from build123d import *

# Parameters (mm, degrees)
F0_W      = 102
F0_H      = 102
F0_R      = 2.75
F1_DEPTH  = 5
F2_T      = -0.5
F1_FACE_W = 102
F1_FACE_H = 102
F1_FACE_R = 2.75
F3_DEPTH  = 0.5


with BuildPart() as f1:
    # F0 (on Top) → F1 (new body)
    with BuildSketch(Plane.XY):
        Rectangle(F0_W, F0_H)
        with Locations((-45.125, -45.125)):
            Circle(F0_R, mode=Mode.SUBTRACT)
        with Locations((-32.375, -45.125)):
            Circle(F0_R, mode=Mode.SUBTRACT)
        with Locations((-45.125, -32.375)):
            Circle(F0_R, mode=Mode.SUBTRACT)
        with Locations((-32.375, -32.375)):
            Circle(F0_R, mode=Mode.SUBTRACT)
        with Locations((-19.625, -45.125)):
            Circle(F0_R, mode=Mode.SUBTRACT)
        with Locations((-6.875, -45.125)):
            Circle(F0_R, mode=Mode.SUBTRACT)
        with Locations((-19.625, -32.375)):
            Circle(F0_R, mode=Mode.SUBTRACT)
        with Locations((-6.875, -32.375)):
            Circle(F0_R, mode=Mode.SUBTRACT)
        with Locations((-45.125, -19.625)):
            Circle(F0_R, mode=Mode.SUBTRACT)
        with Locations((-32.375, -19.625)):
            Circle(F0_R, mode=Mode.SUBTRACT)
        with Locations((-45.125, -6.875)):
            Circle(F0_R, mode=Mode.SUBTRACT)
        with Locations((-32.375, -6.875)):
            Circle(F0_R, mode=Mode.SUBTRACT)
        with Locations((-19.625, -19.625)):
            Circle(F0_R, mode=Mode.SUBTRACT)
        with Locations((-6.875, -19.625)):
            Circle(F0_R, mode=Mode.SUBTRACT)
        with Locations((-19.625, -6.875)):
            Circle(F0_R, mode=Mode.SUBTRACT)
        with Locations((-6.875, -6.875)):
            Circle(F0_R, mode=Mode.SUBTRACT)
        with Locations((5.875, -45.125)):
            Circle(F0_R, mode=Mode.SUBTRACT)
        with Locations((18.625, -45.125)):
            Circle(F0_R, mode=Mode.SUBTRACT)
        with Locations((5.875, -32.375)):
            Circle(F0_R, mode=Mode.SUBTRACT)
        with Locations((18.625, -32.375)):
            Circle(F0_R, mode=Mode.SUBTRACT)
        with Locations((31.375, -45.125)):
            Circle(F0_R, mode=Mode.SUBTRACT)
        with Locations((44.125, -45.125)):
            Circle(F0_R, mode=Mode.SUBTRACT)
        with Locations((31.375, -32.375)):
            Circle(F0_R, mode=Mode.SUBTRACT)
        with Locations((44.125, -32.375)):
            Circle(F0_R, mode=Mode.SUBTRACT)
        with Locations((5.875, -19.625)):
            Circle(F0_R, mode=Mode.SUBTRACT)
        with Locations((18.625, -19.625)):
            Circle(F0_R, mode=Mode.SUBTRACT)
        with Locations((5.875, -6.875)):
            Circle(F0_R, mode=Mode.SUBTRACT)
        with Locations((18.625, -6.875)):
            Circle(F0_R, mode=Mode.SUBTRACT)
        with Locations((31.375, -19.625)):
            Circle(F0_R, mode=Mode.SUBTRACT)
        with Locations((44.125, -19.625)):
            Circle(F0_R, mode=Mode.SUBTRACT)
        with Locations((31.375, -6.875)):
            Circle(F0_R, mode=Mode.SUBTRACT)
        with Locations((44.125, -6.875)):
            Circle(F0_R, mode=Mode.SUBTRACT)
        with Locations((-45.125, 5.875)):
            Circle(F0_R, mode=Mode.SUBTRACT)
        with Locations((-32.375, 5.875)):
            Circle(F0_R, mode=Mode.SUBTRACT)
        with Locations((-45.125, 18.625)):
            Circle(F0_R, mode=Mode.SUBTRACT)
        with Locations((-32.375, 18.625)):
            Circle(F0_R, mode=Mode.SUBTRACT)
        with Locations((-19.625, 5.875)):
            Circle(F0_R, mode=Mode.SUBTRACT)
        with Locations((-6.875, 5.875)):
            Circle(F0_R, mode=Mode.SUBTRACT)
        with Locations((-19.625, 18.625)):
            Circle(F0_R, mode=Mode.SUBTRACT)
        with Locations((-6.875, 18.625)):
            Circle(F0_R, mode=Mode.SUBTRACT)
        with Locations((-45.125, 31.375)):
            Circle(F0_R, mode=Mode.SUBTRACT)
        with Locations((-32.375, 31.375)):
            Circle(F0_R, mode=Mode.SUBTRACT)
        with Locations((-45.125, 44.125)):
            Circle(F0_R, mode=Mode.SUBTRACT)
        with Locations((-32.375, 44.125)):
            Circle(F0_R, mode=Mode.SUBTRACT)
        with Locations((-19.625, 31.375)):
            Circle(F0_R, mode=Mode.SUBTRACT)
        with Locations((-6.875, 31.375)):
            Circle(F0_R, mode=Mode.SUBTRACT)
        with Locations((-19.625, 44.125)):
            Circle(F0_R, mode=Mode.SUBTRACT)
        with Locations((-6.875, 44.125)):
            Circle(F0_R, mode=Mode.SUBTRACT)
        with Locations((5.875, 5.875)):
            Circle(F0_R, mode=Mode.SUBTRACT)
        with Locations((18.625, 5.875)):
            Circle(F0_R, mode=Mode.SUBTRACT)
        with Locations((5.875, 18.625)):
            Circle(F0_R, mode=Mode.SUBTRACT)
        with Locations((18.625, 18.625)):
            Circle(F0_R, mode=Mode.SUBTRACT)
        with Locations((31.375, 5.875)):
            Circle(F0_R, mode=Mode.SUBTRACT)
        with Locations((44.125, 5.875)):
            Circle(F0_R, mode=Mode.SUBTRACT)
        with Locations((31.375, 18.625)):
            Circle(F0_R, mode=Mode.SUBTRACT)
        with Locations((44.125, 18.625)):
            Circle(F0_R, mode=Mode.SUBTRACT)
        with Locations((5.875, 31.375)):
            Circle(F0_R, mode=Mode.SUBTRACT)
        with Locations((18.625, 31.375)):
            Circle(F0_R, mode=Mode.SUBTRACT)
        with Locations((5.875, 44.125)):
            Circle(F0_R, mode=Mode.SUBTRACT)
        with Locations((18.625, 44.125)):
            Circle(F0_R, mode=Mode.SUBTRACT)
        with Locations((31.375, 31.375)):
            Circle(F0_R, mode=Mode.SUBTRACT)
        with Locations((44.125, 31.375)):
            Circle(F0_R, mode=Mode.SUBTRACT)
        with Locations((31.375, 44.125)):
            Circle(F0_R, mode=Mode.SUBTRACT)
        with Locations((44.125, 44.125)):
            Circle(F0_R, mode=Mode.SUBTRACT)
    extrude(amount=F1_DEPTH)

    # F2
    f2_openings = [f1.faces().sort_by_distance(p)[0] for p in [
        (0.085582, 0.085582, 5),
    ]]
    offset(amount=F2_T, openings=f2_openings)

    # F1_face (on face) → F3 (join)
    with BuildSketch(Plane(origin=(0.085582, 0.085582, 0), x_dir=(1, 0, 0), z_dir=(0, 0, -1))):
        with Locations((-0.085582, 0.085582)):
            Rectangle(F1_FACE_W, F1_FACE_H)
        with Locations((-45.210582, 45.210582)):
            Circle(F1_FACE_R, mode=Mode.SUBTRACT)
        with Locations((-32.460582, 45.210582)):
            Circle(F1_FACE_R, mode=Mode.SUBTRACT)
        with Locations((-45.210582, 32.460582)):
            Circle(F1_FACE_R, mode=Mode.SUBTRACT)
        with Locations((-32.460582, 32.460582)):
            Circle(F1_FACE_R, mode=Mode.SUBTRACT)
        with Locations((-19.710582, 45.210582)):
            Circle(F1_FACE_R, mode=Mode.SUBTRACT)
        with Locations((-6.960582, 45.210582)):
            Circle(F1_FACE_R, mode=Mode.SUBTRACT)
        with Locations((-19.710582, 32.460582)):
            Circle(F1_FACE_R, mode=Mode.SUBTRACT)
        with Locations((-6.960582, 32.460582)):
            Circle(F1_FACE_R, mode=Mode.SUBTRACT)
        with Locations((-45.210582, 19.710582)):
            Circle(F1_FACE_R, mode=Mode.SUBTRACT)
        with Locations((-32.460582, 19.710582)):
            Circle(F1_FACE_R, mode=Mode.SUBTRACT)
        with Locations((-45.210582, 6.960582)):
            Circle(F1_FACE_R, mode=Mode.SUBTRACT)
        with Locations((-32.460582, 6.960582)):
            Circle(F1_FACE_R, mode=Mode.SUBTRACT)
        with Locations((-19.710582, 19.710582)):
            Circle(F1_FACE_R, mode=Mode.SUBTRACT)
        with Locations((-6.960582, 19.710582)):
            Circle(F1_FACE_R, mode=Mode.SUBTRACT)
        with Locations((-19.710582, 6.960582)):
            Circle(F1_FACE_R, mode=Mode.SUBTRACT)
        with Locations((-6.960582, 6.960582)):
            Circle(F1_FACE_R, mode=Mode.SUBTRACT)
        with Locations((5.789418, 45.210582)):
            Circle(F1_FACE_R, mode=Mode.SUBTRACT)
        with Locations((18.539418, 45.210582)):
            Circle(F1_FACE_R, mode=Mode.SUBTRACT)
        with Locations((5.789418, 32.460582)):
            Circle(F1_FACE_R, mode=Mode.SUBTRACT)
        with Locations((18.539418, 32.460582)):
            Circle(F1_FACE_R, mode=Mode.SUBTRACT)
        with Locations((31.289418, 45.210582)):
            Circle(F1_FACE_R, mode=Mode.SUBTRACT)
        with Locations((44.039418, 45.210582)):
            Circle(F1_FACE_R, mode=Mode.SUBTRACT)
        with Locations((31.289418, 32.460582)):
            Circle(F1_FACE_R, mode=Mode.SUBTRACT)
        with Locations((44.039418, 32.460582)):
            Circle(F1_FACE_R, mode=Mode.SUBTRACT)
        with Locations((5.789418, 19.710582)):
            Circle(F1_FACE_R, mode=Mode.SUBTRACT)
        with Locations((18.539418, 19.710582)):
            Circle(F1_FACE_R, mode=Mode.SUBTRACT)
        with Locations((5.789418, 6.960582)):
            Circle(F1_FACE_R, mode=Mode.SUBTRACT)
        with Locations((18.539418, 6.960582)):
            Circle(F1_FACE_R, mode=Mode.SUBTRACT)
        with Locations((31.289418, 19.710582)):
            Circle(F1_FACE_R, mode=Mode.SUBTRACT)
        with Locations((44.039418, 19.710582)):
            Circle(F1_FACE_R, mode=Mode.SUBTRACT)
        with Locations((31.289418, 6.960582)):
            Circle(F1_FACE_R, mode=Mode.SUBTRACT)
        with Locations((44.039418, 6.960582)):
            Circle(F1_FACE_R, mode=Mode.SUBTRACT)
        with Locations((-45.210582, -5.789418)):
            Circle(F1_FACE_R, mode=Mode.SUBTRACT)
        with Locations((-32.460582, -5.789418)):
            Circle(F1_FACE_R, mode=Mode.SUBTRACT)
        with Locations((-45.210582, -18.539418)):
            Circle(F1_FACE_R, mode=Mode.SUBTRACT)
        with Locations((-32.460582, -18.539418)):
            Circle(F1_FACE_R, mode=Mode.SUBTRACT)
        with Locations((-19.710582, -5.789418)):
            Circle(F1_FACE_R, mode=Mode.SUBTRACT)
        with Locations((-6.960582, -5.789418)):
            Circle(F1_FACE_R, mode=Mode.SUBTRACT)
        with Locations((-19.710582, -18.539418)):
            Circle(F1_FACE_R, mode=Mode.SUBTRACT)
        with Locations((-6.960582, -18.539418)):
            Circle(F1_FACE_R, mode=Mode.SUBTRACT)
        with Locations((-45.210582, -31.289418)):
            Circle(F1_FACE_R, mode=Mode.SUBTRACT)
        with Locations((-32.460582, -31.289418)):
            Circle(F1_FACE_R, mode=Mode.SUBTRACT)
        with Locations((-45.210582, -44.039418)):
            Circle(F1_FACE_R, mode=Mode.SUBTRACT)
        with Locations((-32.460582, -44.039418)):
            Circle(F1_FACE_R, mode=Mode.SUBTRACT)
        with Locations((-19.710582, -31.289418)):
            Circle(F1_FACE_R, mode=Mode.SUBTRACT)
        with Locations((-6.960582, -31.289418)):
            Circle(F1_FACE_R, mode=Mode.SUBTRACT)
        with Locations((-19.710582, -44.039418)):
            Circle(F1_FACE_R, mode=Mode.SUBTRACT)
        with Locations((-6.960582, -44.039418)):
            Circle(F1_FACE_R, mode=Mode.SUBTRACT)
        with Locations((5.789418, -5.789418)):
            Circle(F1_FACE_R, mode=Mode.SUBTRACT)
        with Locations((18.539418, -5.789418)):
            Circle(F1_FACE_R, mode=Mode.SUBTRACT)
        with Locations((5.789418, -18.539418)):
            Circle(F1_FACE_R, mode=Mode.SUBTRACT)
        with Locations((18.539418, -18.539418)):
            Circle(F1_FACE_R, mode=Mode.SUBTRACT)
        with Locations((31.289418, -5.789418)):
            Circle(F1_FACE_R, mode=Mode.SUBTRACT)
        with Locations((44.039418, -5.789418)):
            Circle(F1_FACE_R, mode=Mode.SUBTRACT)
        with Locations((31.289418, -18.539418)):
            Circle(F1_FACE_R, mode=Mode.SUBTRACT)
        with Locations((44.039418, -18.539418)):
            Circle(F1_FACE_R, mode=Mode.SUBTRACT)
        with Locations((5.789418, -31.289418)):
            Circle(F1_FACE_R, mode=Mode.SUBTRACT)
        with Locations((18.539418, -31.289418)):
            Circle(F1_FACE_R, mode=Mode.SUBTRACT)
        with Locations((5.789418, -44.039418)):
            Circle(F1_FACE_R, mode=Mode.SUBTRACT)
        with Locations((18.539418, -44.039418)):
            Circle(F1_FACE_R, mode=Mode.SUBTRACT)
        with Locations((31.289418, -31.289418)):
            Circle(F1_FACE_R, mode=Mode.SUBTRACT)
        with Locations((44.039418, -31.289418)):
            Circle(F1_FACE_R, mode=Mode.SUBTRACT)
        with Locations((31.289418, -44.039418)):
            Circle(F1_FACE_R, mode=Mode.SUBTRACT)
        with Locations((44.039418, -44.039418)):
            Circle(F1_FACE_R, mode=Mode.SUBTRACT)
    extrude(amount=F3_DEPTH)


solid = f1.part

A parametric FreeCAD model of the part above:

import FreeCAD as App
import Part
import Sketcher
from FreeCAD import Vector


def faces_at(feature, points):
    """Names of the faces that lie closest to the given points."""
    faces = feature.Shape.Faces
    near = lambda p: min(range(len(faces)), key=lambda i: faces[i].distToShape(Part.Vertex(*p))[0])
    return sorted({f"Face{near(p) + 1}" for p in points})


def add_polygon(sketch, points):
    """Adds a closed chain of lines whose ends are joined by coincident constraints."""
    first, n = sketch.GeometryCount, len(points)
    for a, b in zip(points, points[1:] + points[:1]):
        sketch.addGeometry(Part.LineSegment(App.Vector(*a, 0), App.Vector(*b, 0)), False)
    for i in range(n):
        sketch.addConstraint(Sketcher.Constraint("Coincident", first + i, 2, first + (i + 1) % n, 1))

doc = App.newDocument("Part")
params = doc.addObject("Spreadsheet::Sheet", "Params")
for row, (alias, value) in enumerate([
    ("sketch1_diameter", "5.5 mm"),
    ("sketch1_width", "102 mm"),
    ("pad1_length", "5 mm"),
    ("thickness_wall", "0.5 mm"),
    ("sketch2_diameter", "5.5 mm"),
    ("sketch2_width", "102 mm"),
    ("pad2_length", "0.5 mm"),
], start=1):
    params.set(f"A{row}", alias)
    params.set(f"B{row}", "=" + value)
    params.setAlias(f"B{row}", alias)

body = doc.addObject("PartDesign::Body", "Body")

# Sketch on XY plane
sketch1 = body.newObject("Sketcher::SketchObject", "Sketch")
sketch1.AttachmentSupport = (doc.getObject("XY_Plane"), [""])
sketch1.MapMode = "FlatFace"
add_polygon(sketch1, [(-51, 51), (-51, -51), (51, -51), (51, 51)])  # lines 0-3
sketch1.addGeometry(Part.Circle(Vector(-45.1, -45.1, 0), Vector(0, 0, 1), 2.8), False)  # 4
sketch1.addGeometry(Part.Circle(Vector(-32.4, -45.1, 0), Vector(0, 0, 1), 2.8), False)  # 5
sketch1.addGeometry(Part.Circle(Vector(-45.1, -32.4, 0), Vector(0, 0, 1), 2.8), False)  # 6
sketch1.addGeometry(Part.Circle(Vector(-32.4, -32.4, 0), Vector(0, 0, 1), 2.8), False)  # 7
sketch1.addGeometry(Part.Circle(Vector(-19.6, -45.1, 0), Vector(0, 0, 1), 2.8), False)  # 8
sketch1.addGeometry(Part.Circle(Vector(-6.9, -45.1, 0), Vector(0, 0, 1), 2.8), False)  # 9
sketch1.addGeometry(Part.Circle(Vector(-19.6, -32.4, 0), Vector(0, 0, 1), 2.8), False)  # 10
sketch1.addGeometry(Part.Circle(Vector(-6.9, -32.4, 0), Vector(0, 0, 1), 2.8), False)  # 11
sketch1.addGeometry(Part.Circle(Vector(-45.1, -19.6, 0), Vector(0, 0, 1), 2.8), False)  # 12
sketch1.addGeometry(Part.Circle(Vector(-32.4, -19.6, 0), Vector(0, 0, 1), 2.8), False)  # 13
sketch1.addGeometry(Part.Circle(Vector(-45.1, -6.9, 0), Vector(0, 0, 1), 2.8), False)  # 14
sketch1.addGeometry(Part.Circle(Vector(-32.4, -6.9, 0), Vector(0, 0, 1), 2.8), False)  # 15
sketch1.addGeometry(Part.Circle(Vector(-19.6, -19.6, 0), Vector(0, 0, 1), 2.8), False)  # 16
sketch1.addGeometry(Part.Circle(Vector(-6.9, -19.6, 0), Vector(0, 0, 1), 2.8), False)  # 17
sketch1.addGeometry(Part.Circle(Vector(-19.6, -6.9, 0), Vector(0, 0, 1), 2.8), False)  # 18
sketch1.addGeometry(Part.Circle(Vector(-6.9, -6.9, 0), Vector(0, 0, 1), 2.8), False)  # 19
sketch1.addGeometry(Part.Circle(Vector(5.9, -45.1, 0), Vector(0, 0, 1), 2.8), False)  # 20
sketch1.addGeometry(Part.Circle(Vector(18.6, -45.1, 0), Vector(0, 0, 1), 2.8), False)  # 21
sketch1.addGeometry(Part.Circle(Vector(5.9, -32.4, 0), Vector(0, 0, 1), 2.8), False)  # 22
sketch1.addGeometry(Part.Circle(Vector(18.6, -32.4, 0), Vector(0, 0, 1), 2.8), False)  # 23
sketch1.addGeometry(Part.Circle(Vector(31.4, -45.1, 0), Vector(0, 0, 1), 2.8), False)  # 24
sketch1.addGeometry(Part.Circle(Vector(44.1, -45.1, 0), Vector(0, 0, 1), 2.8), False)  # 25
sketch1.addGeometry(Part.Circle(Vector(31.4, -32.4, 0), Vector(0, 0, 1), 2.8), False)  # 26
sketch1.addGeometry(Part.Circle(Vector(44.1, -32.4, 0), Vector(0, 0, 1), 2.8), False)  # 27
sketch1.addGeometry(Part.Circle(Vector(5.9, -19.6, 0), Vector(0, 0, 1), 2.8), False)  # 28
sketch1.addGeometry(Part.Circle(Vector(18.6, -19.6, 0), Vector(0, 0, 1), 2.8), False)  # 29
sketch1.addGeometry(Part.Circle(Vector(5.9, -6.9, 0), Vector(0, 0, 1), 2.8), False)  # 30
sketch1.addGeometry(Part.Circle(Vector(18.6, -6.9, 0), Vector(0, 0, 1), 2.8), False)  # 31
sketch1.addGeometry(Part.Circle(Vector(31.4, -19.6, 0), Vector(0, 0, 1), 2.8), False)  # 32
sketch1.addGeometry(Part.Circle(Vector(44.1, -19.6, 0), Vector(0, 0, 1), 2.8), False)  # 33
sketch1.addGeometry(Part.Circle(Vector(31.4, -6.9, 0), Vector(0, 0, 1), 2.8), False)  # 34
sketch1.addGeometry(Part.Circle(Vector(44.1, -6.9, 0), Vector(0, 0, 1), 2.8), False)  # 35
sketch1.addGeometry(Part.Circle(Vector(-45.1, 5.9, 0), Vector(0, 0, 1), 2.8), False)  # 36
sketch1.addGeometry(Part.Circle(Vector(-32.4, 5.9, 0), Vector(0, 0, 1), 2.8), False)  # 37
sketch1.addGeometry(Part.Circle(Vector(-45.1, 18.6, 0), Vector(0, 0, 1), 2.8), False)  # 38
sketch1.addGeometry(Part.Circle(Vector(-32.4, 18.6, 0), Vector(0, 0, 1), 2.8), False)  # 39
sketch1.addGeometry(Part.Circle(Vector(-19.6, 5.9, 0), Vector(0, 0, 1), 2.8), False)  # 40
sketch1.addGeometry(Part.Circle(Vector(-6.9, 5.9, 0), Vector(0, 0, 1), 2.8), False)  # 41
sketch1.addGeometry(Part.Circle(Vector(-19.6, 18.6, 0), Vector(0, 0, 1), 2.8), False)  # 42
sketch1.addGeometry(Part.Circle(Vector(-6.9, 18.6, 0), Vector(0, 0, 1), 2.8), False)  # 43
sketch1.addGeometry(Part.Circle(Vector(-45.1, 31.4, 0), Vector(0, 0, 1), 2.8), False)  # 44
sketch1.addGeometry(Part.Circle(Vector(-32.4, 31.4, 0), Vector(0, 0, 1), 2.8), False)  # 45
sketch1.addGeometry(Part.Circle(Vector(-45.1, 44.1, 0), Vector(0, 0, 1), 2.8), False)  # 46
sketch1.addGeometry(Part.Circle(Vector(-32.4, 44.1, 0), Vector(0, 0, 1), 2.8), False)  # 47
sketch1.addGeometry(Part.Circle(Vector(-19.6, 31.4, 0), Vector(0, 0, 1), 2.8), False)  # 48
sketch1.addGeometry(Part.Circle(Vector(-6.9, 31.4, 0), Vector(0, 0, 1), 2.8), False)  # 49
sketch1.addGeometry(Part.Circle(Vector(-19.6, 44.1, 0), Vector(0, 0, 1), 2.8), False)  # 50
sketch1.addGeometry(Part.Circle(Vector(-6.9, 44.1, 0), Vector(0, 0, 1), 2.8), False)  # 51
sketch1.addGeometry(Part.Circle(Vector(5.9, 5.9, 0), Vector(0, 0, 1), 2.8), False)  # 52
sketch1.addGeometry(Part.Circle(Vector(18.6, 5.9, 0), Vector(0, 0, 1), 2.8), False)  # 53
sketch1.addGeometry(Part.Circle(Vector(5.9, 18.6, 0), Vector(0, 0, 1), 2.8), False)  # 54
sketch1.addGeometry(Part.Circle(Vector(18.6, 18.6, 0), Vector(0, 0, 1), 2.8), False)  # 55
sketch1.addGeometry(Part.Circle(Vector(31.4, 5.9, 0), Vector(0, 0, 1), 2.8), False)  # 56
sketch1.addGeometry(Part.Circle(Vector(44.1, 5.9, 0), Vector(0, 0, 1), 2.8), False)  # 57
sketch1.addGeometry(Part.Circle(Vector(31.4, 18.6, 0), Vector(0, 0, 1), 2.8), False)  # 58
sketch1.addGeometry(Part.Circle(Vector(44.1, 18.6, 0), Vector(0, 0, 1), 2.8), False)  # 59
sketch1.addGeometry(Part.Circle(Vector(5.9, 31.4, 0), Vector(0, 0, 1), 2.8), False)  # 60
sketch1.addGeometry(Part.Circle(Vector(18.6, 31.4, 0), Vector(0, 0, 1), 2.8), False)  # 61
sketch1.addGeometry(Part.Circle(Vector(5.9, 44.1, 0), Vector(0, 0, 1), 2.8), False)  # 62
sketch1.addGeometry(Part.Circle(Vector(18.6, 44.1, 0), Vector(0, 0, 1), 2.8), False)  # 63
sketch1.addGeometry(Part.Circle(Vector(31.4, 31.4, 0), Vector(0, 0, 1), 2.8), False)  # 64
sketch1.addGeometry(Part.Circle(Vector(44.1, 31.4, 0), Vector(0, 0, 1), 2.8), False)  # 65
sketch1.addGeometry(Part.Circle(Vector(31.4, 44.1, 0), Vector(0, 0, 1), 2.8), False)  # 66
sketch1.addGeometry(Part.Circle(Vector(44.1, 44.1, 0), Vector(0, 0, 1), 2.8), False)  # 67
sketch1.addConstraint([
    Sketcher.Constraint("Vertical", 0),
    Sketcher.Constraint("Horizontal", 1),
    Sketcher.Constraint("Vertical", 2),
    Sketcher.Constraint("Horizontal", 3),
    Sketcher.Constraint("Equal", 4, 5),
    Sketcher.Constraint("Equal", 5, 6),
    Sketcher.Constraint("Equal", 6, 7),
    Sketcher.Constraint("Equal", 7, 8),
    Sketcher.Constraint("Equal", 8, 9),
    Sketcher.Constraint("Equal", 9, 10),
    Sketcher.Constraint("Equal", 10, 11),
    Sketcher.Constraint("Equal", 11, 12),
    Sketcher.Constraint("Equal", 12, 13),
    Sketcher.Constraint("Equal", 13, 14),
    Sketcher.Constraint("Equal", 14, 15),
    Sketcher.Constraint("Equal", 15, 16),
    Sketcher.Constraint("Equal", 16, 17),
    Sketcher.Constraint("Equal", 17, 18),
    Sketcher.Constraint("Equal", 18, 19),
    Sketcher.Constraint("Equal", 19, 20),
    Sketcher.Constraint("Equal", 20, 21),
    Sketcher.Constraint("Equal", 21, 22),
    Sketcher.Constraint("Equal", 22, 23),
    Sketcher.Constraint("Equal", 23, 24),
    Sketcher.Constraint("Equal", 24, 25),
    Sketcher.Constraint("Equal", 25, 26),
    Sketcher.Constraint("Equal", 26, 27),
    Sketcher.Constraint("Equal", 27, 28),
    Sketcher.Constraint("Equal", 28, 29),
    Sketcher.Constraint("Equal", 29, 30),
    Sketcher.Constraint("Equal", 30, 31),
    Sketcher.Constraint("Equal", 31, 32),
    Sketcher.Constraint("Equal", 32, 33),
    Sketcher.Constraint("Equal", 33, 34),
    Sketcher.Constraint("Equal", 34, 35),
    Sketcher.Constraint("Equal", 35, 36),
    Sketcher.Constraint("Equal", 36, 37),
    Sketcher.Constraint("Equal", 37, 38),
    Sketcher.Constraint("Equal", 38, 39),
    Sketcher.Constraint("Equal", 39, 40),
    Sketcher.Constraint("Equal", 40, 41),
    Sketcher.Constraint("Equal", 41, 42),
    Sketcher.Constraint("Equal", 42, 43),
    Sketcher.Constraint("Equal", 43, 44),
    Sketcher.Constraint("Equal", 44, 45),
    Sketcher.Constraint("Equal", 45, 46),
    Sketcher.Constraint("Equal", 46, 47),
    Sketcher.Constraint("Equal", 47, 48),
    Sketcher.Constraint("Equal", 48, 49),
    Sketcher.Constraint("Equal", 49, 50),
    Sketcher.Constraint("Equal", 50, 51),
    Sketcher.Constraint("Equal", 51, 52),
    Sketcher.Constraint("Equal", 52, 53),
    Sketcher.Constraint("Equal", 53, 54),
    Sketcher.Constraint("Equal", 54, 55),
    Sketcher.Constraint("Equal", 55, 56),
    Sketcher.Constraint("Equal", 56, 57),
    Sketcher.Constraint("Equal", 57, 58),
    Sketcher.Constraint("Equal", 58, 59),
    Sketcher.Constraint("Equal", 59, 60),
    Sketcher.Constraint("Equal", 60, 61),
    Sketcher.Constraint("Equal", 61, 62),
    Sketcher.Constraint("Equal", 62, 63),
    Sketcher.Constraint("Equal", 63, 64),
    Sketcher.Constraint("Equal", 64, 65),
    Sketcher.Constraint("Equal", 65, 66),
    Sketcher.Constraint("Equal", 66, 67),
    Sketcher.Constraint("Symmetric", 0, 2, 2, 2, -1, 1),
    Sketcher.Constraint("Horizontal", 4, 3, 5, 3),
    Sketcher.Constraint("Horizontal", 6, 3, 7, 3),
    Sketcher.Constraint("Horizontal", 5, 3, 8, 3),
    Sketcher.Constraint("Horizontal", 8, 3, 9, 3),
    Sketcher.Constraint("Horizontal", 7, 3, 10, 3),
    Sketcher.Constraint("Horizontal", 10, 3, 11, 3),
    Sketcher.Constraint("Horizontal", 12, 3, 13, 3),
    Sketcher.Constraint("Horizontal", 14, 3, 15, 3),
    Sketcher.Constraint("Horizontal", 13, 3, 16, 3),
    Sketcher.Constraint("Horizontal", 16, 3, 17, 3),
    Sketcher.Constraint("Horizontal", 15, 3, 18, 3),
    Sketcher.Constraint("Horizontal", 18, 3, 19, 3),
    Sketcher.Constraint("Horizontal", 9, 3, 20, 3),
    Sketcher.Constraint("Horizontal", 20, 3, 21, 3),
    Sketcher.Constraint("Horizontal", 11, 3, 22, 3),
    Sketcher.Constraint("Horizontal", 22, 3, 23, 3),
    Sketcher.Constraint("Horizontal", 21, 3, 24, 3),
    Sketcher.Constraint("Horizontal", 24, 3, 25, 3),
    Sketcher.Constraint("Horizontal", 23, 3, 26, 3),
    Sketcher.Constraint("Horizontal", 26, 3, 27, 3),
    Sketcher.Constraint("Horizontal", 17, 3, 28, 3),
    Sketcher.Constraint("Horizontal", 28, 3, 29, 3),
    Sketcher.Constraint("Horizontal", 19, 3, 30, 3),
    Sketcher.Constraint("Horizontal", 30, 3, 31, 3),
    Sketcher.Constraint("Horizontal", 29, 3, 32, 3),
    Sketcher.Constraint("Horizontal", 32, 3, 33, 3),
    Sketcher.Constraint("Horizontal", 31, 3, 34, 3),
    Sketcher.Constraint("Horizontal", 34, 3, 35, 3),
    Sketcher.Constraint("Horizontal", 36, 3, 37, 3),
    Sketcher.Constraint("Horizontal", 38, 3, 39, 3),
    Sketcher.Constraint("Horizontal", 37, 3, 40, 3),
    Sketcher.Constraint("Horizontal", 40, 3, 41, 3),
    Sketcher.Constraint("Horizontal", 39, 3, 42, 3),
    Sketcher.Constraint("Horizontal", 42, 3, 43, 3),
    Sketcher.Constraint("Horizontal", 44, 3, 45, 3),
    Sketcher.Constraint("Horizontal", 46, 3, 47, 3),
    Sketcher.Constraint("Horizontal", 45, 3, 48, 3),
    Sketcher.Constraint("Horizontal", 48, 3, 49, 3),
    Sketcher.Constraint("Horizontal", 47, 3, 50, 3),
    Sketcher.Constraint("Horizontal", 50, 3, 51, 3),
    Sketcher.Constraint("Horizontal", 41, 3, 52, 3),
    Sketcher.Constraint("Horizontal", 52, 3, 53, 3),
    Sketcher.Constraint("Horizontal", 43, 3, 54, 3),
    Sketcher.Constraint("Horizontal", 54, 3, 55, 3),
    Sketcher.Constraint("Horizontal", 53, 3, 56, 3),
    Sketcher.Constraint("Horizontal", 56, 3, 57, 3),
    Sketcher.Constraint("Horizontal", 55, 3, 58, 3),
    Sketcher.Constraint("Horizontal", 58, 3, 59, 3),
    Sketcher.Constraint("Horizontal", 49, 3, 60, 3),
    Sketcher.Constraint("Horizontal", 60, 3, 61, 3),
    Sketcher.Constraint("Horizontal", 51, 3, 62, 3),
    Sketcher.Constraint("Horizontal", 62, 3, 63, 3),
    Sketcher.Constraint("Horizontal", 61, 3, 64, 3),
    Sketcher.Constraint("Horizontal", 64, 3, 65, 3),
    Sketcher.Constraint("Horizontal", 63, 3, 66, 3),
    Sketcher.Constraint("Horizontal", 66, 3, 67, 3),
    Sketcher.Constraint("Vertical", 4, 3, 6, 3),
    Sketcher.Constraint("Vertical", 5, 3, 7, 3),
    Sketcher.Constraint("Vertical", 8, 3, 10, 3),
    Sketcher.Constraint("Vertical", 9, 3, 11, 3),
    Sketcher.Constraint("Vertical", 6, 3, 12, 3),
    Sketcher.Constraint("Vertical", 7, 3, 13, 3),
    Sketcher.Constraint("Vertical", 12, 3, 14, 3),
    Sketcher.Constraint("Vertical", 13, 3, 15, 3),
    Sketcher.Constraint("Vertical", 10, 3, 16, 3),
    Sketcher.Constraint("Vertical", 11, 3, 17, 3),
    Sketcher.Constraint("Vertical", 16, 3, 18, 3),
    Sketcher.Constraint("Vertical", 17, 3, 19, 3),
    Sketcher.Constraint("Vertical", 20, 3, 22, 3),
    Sketcher.Constraint("Vertical", 21, 3, 23, 3),
    Sketcher.Constraint("Vertical", 24, 3, 26, 3),
    Sketcher.Constraint("Vertical", 25, 3, 27, 3),
    Sketcher.Constraint("Vertical", 22, 3, 28, 3),
    Sketcher.Constraint("Vertical", 23, 3, 29, 3),
    Sketcher.Constraint("Vertical", 28, 3, 30, 3),
    Sketcher.Constraint("Vertical", 29, 3, 31, 3),
    Sketcher.Constraint("Vertical", 26, 3, 32, 3),
    Sketcher.Constraint("Vertical", 27, 3, 33, 3),
    Sketcher.Constraint("Vertical", 32, 3, 34, 3),
    Sketcher.Constraint("Vertical", 33, 3, 35, 3),
    Sketcher.Constraint("Vertical", 14, 3, 36, 3),
    Sketcher.Constraint("Vertical", 15, 3, 37, 3),
    Sketcher.Constraint("Vertical", 36, 3, 38, 3),
    Sketcher.Constraint("Vertical", 37, 3, 39, 3),
    Sketcher.Constraint("Vertical", 18, 3, 40, 3),
    Sketcher.Constraint("Vertical", 19, 3, 41, 3),
    Sketcher.Constraint("Vertical", 40, 3, 42, 3),
    Sketcher.Constraint("Vertical", 41, 3, 43, 3),
    Sketcher.Constraint("Vertical", 38, 3, 44, 3),
    Sketcher.Constraint("Vertical", 39, 3, 45, 3),
    Sketcher.Constraint("Vertical", 44, 3, 46, 3),
    Sketcher.Constraint("Vertical", 45, 3, 47, 3),
    Sketcher.Constraint("Vertical", 42, 3, 48, 3),
    Sketcher.Constraint("Vertical", 43, 3, 49, 3),
    Sketcher.Constraint("Vertical", 48, 3, 50, 3),
    Sketcher.Constraint("Vertical", 49, 3, 51, 3),
    Sketcher.Constraint("Vertical", 30, 3, 52, 3),
    Sketcher.Constraint("Vertical", 31, 3, 53, 3),
    Sketcher.Constraint("Vertical", 52, 3, 54, 3),
    Sketcher.Constraint("Vertical", 53, 3, 55, 3),
    Sketcher.Constraint("Vertical", 34, 3, 56, 3),
    Sketcher.Constraint("Vertical", 35, 3, 57, 3),
    Sketcher.Constraint("Vertical", 56, 3, 58, 3),
    Sketcher.Constraint("Vertical", 57, 3, 59, 3),
    Sketcher.Constraint("Vertical", 54, 3, 60, 3),
    Sketcher.Constraint("Vertical", 55, 3, 61, 3),
    Sketcher.Constraint("Vertical", 60, 3, 62, 3),
    Sketcher.Constraint("Vertical", 61, 3, 63, 3),
    Sketcher.Constraint("Vertical", 58, 3, 64, 3),
    Sketcher.Constraint("Vertical", 59, 3, 65, 3),
    Sketcher.Constraint("Vertical", 64, 3, 66, 3),
    Sketcher.Constraint("Vertical", 65, 3, 67, 3),
    Sketcher.Constraint("Equal", 3, 0),
    Sketcher.Constraint("Diameter", 4, 5.5),
    Sketcher.Constraint("DistanceX", 1, 1, 1, 2, 102.0),
    Sketcher.Constraint("DistanceX", 4, 3, -1, 1, 45.125),
    Sketcher.Constraint("DistanceY", 4, 3, -1, 1, 45.125),
    Sketcher.Constraint("DistanceX", 5, 3, -1, 1, 32.375),
    Sketcher.Constraint("DistanceY", 6, 3, -1, 1, 32.375),
    Sketcher.Constraint("DistanceX", 8, 3, -1, 1, 19.625),
    Sketcher.Constraint("DistanceX", 9, 3, -1, 1, 6.875),
    Sketcher.Constraint("DistanceY", 12, 3, -1, 1, 19.625),
    Sketcher.Constraint("DistanceY", 14, 3, -1, 1, 6.875),
    Sketcher.Constraint("DistanceX", -1, 1, 20, 3, 5.875),
    Sketcher.Constraint("DistanceX", -1, 1, 21, 3, 18.625),
    Sketcher.Constraint("DistanceX", -1, 1, 24, 3, 31.375),
    Sketcher.Constraint("DistanceX", -1, 1, 25, 3, 44.125),
    Sketcher.Constraint("DistanceY", -1, 1, 36, 3, 5.875),
    Sketcher.Constraint("DistanceY", -1, 1, 38, 3, 18.625),
    Sketcher.Constraint("DistanceY", -1, 1, 44, 3, 31.375),
    Sketcher.Constraint("DistanceY", -1, 1, 46, 3, 44.125),
])
sketch1.setExpression("Constraints[185]", "Params.sketch1_diameter")
sketch1.setExpression("Constraints[186]", "Params.sketch1_width")
pad1 = body.newObject("PartDesign::Pad", "Pad")
pad1.Profile = sketch1
pad1.setExpression("Length", "Params.pad1_length")
doc.recompute()

thickness = body.newObject("PartDesign::Thickness", "Thickness")
thickness.Base = (pad1, faces_at(pad1, [(0, 0, 5)]))
thickness.setExpression("Value", "Params.thickness_wall")
thickness.Reversed = True
thickness.Join = "Arc"

# Sketch on XY plane
sketch2 = body.newObject("Sketcher::SketchObject", "Sketch001")
sketch2.AttachmentSupport = (doc.getObject("XY_Plane"), [""])
sketch2.MapMode = "FlatFace"
add_polygon(sketch2, [(-51, -51), (-51, 51), (51, 51), (51, -51)])  # lines 0-3
sketch2.addGeometry(Part.Circle(Vector(-45.1, 44.1, 0), Vector(0, 0, 1), 2.8), False)  # 4
sketch2.addGeometry(Part.Circle(Vector(-32.4, 44.1, 0), Vector(0, 0, 1), 2.8), False)  # 5
sketch2.addGeometry(Part.Circle(Vector(-45.1, 31.4, 0), Vector(0, 0, 1), 2.8), False)  # 6
sketch2.addGeometry(Part.Circle(Vector(-32.4, 31.4, 0), Vector(0, 0, 1), 2.8), False)  # 7
sketch2.addGeometry(Part.Circle(Vector(-19.6, 44.1, 0), Vector(0, 0, 1), 2.8), False)  # 8
sketch2.addGeometry(Part.Circle(Vector(-6.9, 44.1, 0), Vector(0, 0, 1), 2.8), False)  # 9
sketch2.addGeometry(Part.Circle(Vector(-19.6, 31.4, 0), Vector(0, 0, 1), 2.8), False)  # 10
sketch2.addGeometry(Part.Circle(Vector(-6.9, 31.4, 0), Vector(0, 0, 1), 2.8), False)  # 11
sketch2.addGeometry(Part.Circle(Vector(-45.1, 18.6, 0), Vector(0, 0, 1), 2.8), False)  # 12
sketch2.addGeometry(Part.Circle(Vector(-32.4, 18.6, 0), Vector(0, 0, 1), 2.8), False)  # 13
sketch2.addGeometry(Part.Circle(Vector(-45.1, 5.9, 0), Vector(0, 0, 1), 2.8), False)  # 14
sketch2.addGeometry(Part.Circle(Vector(-32.4, 5.9, 0), Vector(0, 0, 1), 2.8), False)  # 15
sketch2.addGeometry(Part.Circle(Vector(-19.6, 18.6, 0), Vector(0, 0, 1), 2.8), False)  # 16
sketch2.addGeometry(Part.Circle(Vector(-6.9, 18.6, 0), Vector(0, 0, 1), 2.8), False)  # 17
sketch2.addGeometry(Part.Circle(Vector(-19.6, 5.9, 0), Vector(0, 0, 1), 2.8), False)  # 18
sketch2.addGeometry(Part.Circle(Vector(-6.9, 5.9, 0), Vector(0, 0, 1), 2.8), False)  # 19
sketch2.addGeometry(Part.Circle(Vector(5.9, 44.1, 0), Vector(0, 0, 1), 2.8), False)  # 20
sketch2.addGeometry(Part.Circle(Vector(18.6, 44.1, 0), Vector(0, 0, 1), 2.8), False)  # 21
sketch2.addGeometry(Part.Circle(Vector(5.9, 31.4, 0), Vector(0, 0, 1), 2.8), False)  # 22
sketch2.addGeometry(Part.Circle(Vector(18.6, 31.4, 0), Vector(0, 0, 1), 2.8), False)  # 23
sketch2.addGeometry(Part.Circle(Vector(31.4, 44.1, 0), Vector(0, 0, 1), 2.8), False)  # 24
sketch2.addGeometry(Part.Circle(Vector(44.1, 44.1, 0), Vector(0, 0, 1), 2.8), False)  # 25
sketch2.addGeometry(Part.Circle(Vector(31.4, 31.4, 0), Vector(0, 0, 1), 2.8), False)  # 26
sketch2.addGeometry(Part.Circle(Vector(44.1, 31.4, 0), Vector(0, 0, 1), 2.8), False)  # 27
sketch2.addGeometry(Part.Circle(Vector(5.9, 18.6, 0), Vector(0, 0, 1), 2.8), False)  # 28
sketch2.addGeometry(Part.Circle(Vector(18.6, 18.6, 0), Vector(0, 0, 1), 2.8), False)  # 29
sketch2.addGeometry(Part.Circle(Vector(5.9, 5.9, 0), Vector(0, 0, 1), 2.8), False)  # 30
sketch2.addGeometry(Part.Circle(Vector(18.6, 5.9, 0), Vector(0, 0, 1), 2.8), False)  # 31
sketch2.addGeometry(Part.Circle(Vector(31.4, 18.6, 0), Vector(0, 0, 1), 2.8), False)  # 32
sketch2.addGeometry(Part.Circle(Vector(44.1, 18.6, 0), Vector(0, 0, 1), 2.8), False)  # 33
sketch2.addGeometry(Part.Circle(Vector(31.4, 5.9, 0), Vector(0, 0, 1), 2.8), False)  # 34
sketch2.addGeometry(Part.Circle(Vector(44.1, 5.9, 0), Vector(0, 0, 1), 2.8), False)  # 35
sketch2.addGeometry(Part.Circle(Vector(-45.1, -6.9, 0), Vector(0, 0, 1), 2.8), False)  # 36
sketch2.addGeometry(Part.Circle(Vector(-32.4, -6.9, 0), Vector(0, 0, 1), 2.8), False)  # 37
sketch2.addGeometry(Part.Circle(Vector(-45.1, -19.6, 0), Vector(0, 0, 1), 2.8), False)  # 38
sketch2.addGeometry(Part.Circle(Vector(-32.4, -19.6, 0), Vector(0, 0, 1), 2.8), False)  # 39
sketch2.addGeometry(Part.Circle(Vector(-19.6, -6.9, 0), Vector(0, 0, 1), 2.8), False)  # 40
sketch2.addGeometry(Part.Circle(Vector(-6.9, -6.9, 0), Vector(0, 0, 1), 2.8), False)  # 41
sketch2.addGeometry(Part.Circle(Vector(-19.6, -19.6, 0), Vector(0, 0, 1), 2.8), False)  # 42
sketch2.addGeometry(Part.Circle(Vector(-6.9, -19.6, 0), Vector(0, 0, 1), 2.8), False)  # 43
sketch2.addGeometry(Part.Circle(Vector(-45.1, -32.4, 0), Vector(0, 0, 1), 2.8), False)  # 44
sketch2.addGeometry(Part.Circle(Vector(-32.4, -32.4, 0), Vector(0, 0, 1), 2.8), False)  # 45
sketch2.addGeometry(Part.Circle(Vector(-45.1, -45.1, 0), Vector(0, 0, 1), 2.8), False)  # 46
sketch2.addGeometry(Part.Circle(Vector(-32.4, -45.1, 0), Vector(0, 0, 1), 2.8), False)  # 47
sketch2.addGeometry(Part.Circle(Vector(-19.6, -32.4, 0), Vector(0, 0, 1), 2.8), False)  # 48
sketch2.addGeometry(Part.Circle(Vector(-6.9, -32.4, 0), Vector(0, 0, 1), 2.8), False)  # 49
sketch2.addGeometry(Part.Circle(Vector(-19.6, -45.1, 0), Vector(0, 0, 1), 2.8), False)  # 50
sketch2.addGeometry(Part.Circle(Vector(-6.9, -45.1, 0), Vector(0, 0, 1), 2.8), False)  # 51
sketch2.addGeometry(Part.Circle(Vector(5.9, -6.9, 0), Vector(0, 0, 1), 2.8), False)  # 52
sketch2.addGeometry(Part.Circle(Vector(18.6, -6.9, 0), Vector(0, 0, 1), 2.8), False)  # 53
sketch2.addGeometry(Part.Circle(Vector(5.9, -19.6, 0), Vector(0, 0, 1), 2.8), False)  # 54
sketch2.addGeometry(Part.Circle(Vector(18.6, -19.6, 0), Vector(0, 0, 1), 2.8), False)  # 55
sketch2.addGeometry(Part.Circle(Vector(31.4, -6.9, 0), Vector(0, 0, 1), 2.8), False)  # 56
sketch2.addGeometry(Part.Circle(Vector(44.1, -6.9, 0), Vector(0, 0, 1), 2.8), False)  # 57
sketch2.addGeometry(Part.Circle(Vector(31.4, -19.6, 0), Vector(0, 0, 1), 2.8), False)  # 58
sketch2.addGeometry(Part.Circle(Vector(44.1, -19.6, 0), Vector(0, 0, 1), 2.8), False)  # 59
sketch2.addGeometry(Part.Circle(Vector(5.9, -32.4, 0), Vector(0, 0, 1), 2.8), False)  # 60
sketch2.addGeometry(Part.Circle(Vector(18.6, -32.4, 0), Vector(0, 0, 1), 2.8), False)  # 61
sketch2.addGeometry(Part.Circle(Vector(5.9, -45.1, 0), Vector(0, 0, 1), 2.8), False)  # 62
sketch2.addGeometry(Part.Circle(Vector(18.6, -45.1, 0), Vector(0, 0, 1), 2.8), False)  # 63
sketch2.addGeometry(Part.Circle(Vector(31.4, -32.4, 0), Vector(0, 0, 1), 2.8), False)  # 64
sketch2.addGeometry(Part.Circle(Vector(44.1, -32.4, 0), Vector(0, 0, 1), 2.8), False)  # 65
sketch2.addGeometry(Part.Circle(Vector(31.4, -45.1, 0), Vector(0, 0, 1), 2.8), False)  # 66
sketch2.addGeometry(Part.Circle(Vector(44.1, -45.1, 0), Vector(0, 0, 1), 2.8), False)  # 67
sketch2.addConstraint([
    Sketcher.Constraint("Vertical", 0),
    Sketcher.Constraint("Horizontal", 1),
    Sketcher.Constraint("Vertical", 2),
    Sketcher.Constraint("Horizontal", 3),
    Sketcher.Constraint("Equal", 4, 5),
    Sketcher.Constraint("Equal", 5, 6),
    Sketcher.Constraint("Equal", 6, 7),
    Sketcher.Constraint("Equal", 7, 8),
    Sketcher.Constraint("Equal", 8, 9),
    Sketcher.Constraint("Equal", 9, 10),
    Sketcher.Constraint("Equal", 10, 11),
    Sketcher.Constraint("Equal", 11, 12),
    Sketcher.Constraint("Equal", 12, 13),
    Sketcher.Constraint("Equal", 13, 14),
    Sketcher.Constraint("Equal", 14, 15),
    Sketcher.Constraint("Equal", 15, 16),
    Sketcher.Constraint("Equal", 16, 17),
    Sketcher.Constraint("Equal", 17, 18),
    Sketcher.Constraint("Equal", 18, 19),
    Sketcher.Constraint("Equal", 19, 20),
    Sketcher.Constraint("Equal", 20, 21),
    Sketcher.Constraint("Equal", 21, 22),
    Sketcher.Constraint("Equal", 22, 23),
    Sketcher.Constraint("Equal", 23, 24),
    Sketcher.Constraint("Equal", 24, 25),
    Sketcher.Constraint("Equal", 25, 26),
    Sketcher.Constraint("Equal", 26, 27),
    Sketcher.Constraint("Equal", 27, 28),
    Sketcher.Constraint("Equal", 28, 29),
    Sketcher.Constraint("Equal", 29, 30),
    Sketcher.Constraint("Equal", 30, 31),
    Sketcher.Constraint("Equal", 31, 32),
    Sketcher.Constraint("Equal", 32, 33),
    Sketcher.Constraint("Equal", 33, 34),
    Sketcher.Constraint("Equal", 34, 35),
    Sketcher.Constraint("Equal", 35, 36),
    Sketcher.Constraint("Equal", 36, 37),
    Sketcher.Constraint("Equal", 37, 38),
    Sketcher.Constraint("Equal", 38, 39),
    Sketcher.Constraint("Equal", 39, 40),
    Sketcher.Constraint("Equal", 40, 41),
    Sketcher.Constraint("Equal", 41, 42),
    Sketcher.Constraint("Equal", 42, 43),
    Sketcher.Constraint("Equal", 43, 44),
    Sketcher.Constraint("Equal", 44, 45),
    Sketcher.Constraint("Equal", 45, 46),
    Sketcher.Constraint("Equal", 46, 47),
    Sketcher.Constraint("Equal", 47, 48),
    Sketcher.Constraint("Equal", 48, 49),
    Sketcher.Constraint("Equal", 49, 50),
    Sketcher.Constraint("Equal", 50, 51),
    Sketcher.Constraint("Equal", 51, 52),
    Sketcher.Constraint("Equal", 52, 53),
    Sketcher.Constraint("Equal", 53, 54),
    Sketcher.Constraint("Equal", 54, 55),
    Sketcher.Constraint("Equal", 55, 56),
    Sketcher.Constraint("Equal", 56, 57),
    Sketcher.Constraint("Equal", 57, 58),
    Sketcher.Constraint("Equal", 58, 59),
    Sketcher.Constraint("Equal", 59, 60),
    Sketcher.Constraint("Equal", 60, 61),
    Sketcher.Constraint("Equal", 61, 62),
    Sketcher.Constraint("Equal", 62, 63),
    Sketcher.Constraint("Equal", 63, 64),
    Sketcher.Constraint("Equal", 64, 65),
    Sketcher.Constraint("Equal", 65, 66),
    Sketcher.Constraint("Equal", 66, 67),
    Sketcher.Constraint("Symmetric", 0, 2, 2, 2, -1, 1),
    Sketcher.Constraint("Horizontal", 4, 3, 5, 3),
    Sketcher.Constraint("Horizontal", 6, 3, 7, 3),
    Sketcher.Constraint("Horizontal", 5, 3, 8, 3),
    Sketcher.Constraint("Horizontal", 8, 3, 9, 3),
    Sketcher.Constraint("Horizontal", 7, 3, 10, 3),
    Sketcher.Constraint("Horizontal", 10, 3, 11, 3),
    Sketcher.Constraint("Horizontal", 12, 3, 13, 3),
    Sketcher.Constraint("Horizontal", 14, 3, 15, 3),
    Sketcher.Constraint("Horizontal", 13, 3, 16, 3),
    Sketcher.Constraint("Horizontal", 16, 3, 17, 3),
    Sketcher.Constraint("Horizontal", 15, 3, 18, 3),
    Sketcher.Constraint("Horizontal", 18, 3, 19, 3),
    Sketcher.Constraint("Horizontal", 9, 3, 20, 3),
    Sketcher.Constraint("Horizontal", 20, 3, 21, 3),
    Sketcher.Constraint("Horizontal", 11, 3, 22, 3),
    Sketcher.Constraint("Horizontal", 22, 3, 23, 3),
    Sketcher.Constraint("Horizontal", 21, 3, 24, 3),
    Sketcher.Constraint("Horizontal", 24, 3, 25, 3),
    Sketcher.Constraint("Horizontal", 23, 3, 26, 3),
    Sketcher.Constraint("Horizontal", 26, 3, 27, 3),
    Sketcher.Constraint("Horizontal", 17, 3, 28, 3),
    Sketcher.Constraint("Horizontal", 28, 3, 29, 3),
    Sketcher.Constraint("Horizontal", 19, 3, 30, 3),
    Sketcher.Constraint("Horizontal", 30, 3, 31, 3),
    Sketcher.Constraint("Horizontal", 29, 3, 32, 3),
    Sketcher.Constraint("Horizontal", 32, 3, 33, 3),
    Sketcher.Constraint("Horizontal", 31, 3, 34, 3),
    Sketcher.Constraint("Horizontal", 34, 3, 35, 3),
    Sketcher.Constraint("Horizontal", 36, 3, 37, 3),
    Sketcher.Constraint("Horizontal", 38, 3, 39, 3),
    Sketcher.Constraint("Horizontal", 37, 3, 40, 3),
    Sketcher.Constraint("Horizontal", 40, 3, 41, 3),
    Sketcher.Constraint("Horizontal", 39, 3, 42, 3),
    Sketcher.Constraint("Horizontal", 42, 3, 43, 3),
    Sketcher.Constraint("Horizontal", 44, 3, 45, 3),
    Sketcher.Constraint("Horizontal", 46, 3, 47, 3),
    Sketcher.Constraint("Horizontal", 45, 3, 48, 3),
    Sketcher.Constraint("Horizontal", 48, 3, 49, 3),
    Sketcher.Constraint("Horizontal", 47, 3, 50, 3),
    Sketcher.Constraint("Horizontal", 50, 3, 51, 3),
    Sketcher.Constraint("Horizontal", 41, 3, 52, 3),
    Sketcher.Constraint("Horizontal", 52, 3, 53, 3),
    Sketcher.Constraint("Horizontal", 43, 3, 54, 3),
    Sketcher.Constraint("Horizontal", 54, 3, 55, 3),
    Sketcher.Constraint("Horizontal", 53, 3, 56, 3),
    Sketcher.Constraint("Horizontal", 56, 3, 57, 3),
    Sketcher.Constraint("Horizontal", 55, 3, 58, 3),
    Sketcher.Constraint("Horizontal", 58, 3, 59, 3),
    Sketcher.Constraint("Horizontal", 49, 3, 60, 3),
    Sketcher.Constraint("Horizontal", 60, 3, 61, 3),
    Sketcher.Constraint("Horizontal", 51, 3, 62, 3),
    Sketcher.Constraint("Horizontal", 62, 3, 63, 3),
    Sketcher.Constraint("Horizontal", 61, 3, 64, 3),
    Sketcher.Constraint("Horizontal", 64, 3, 65, 3),
    Sketcher.Constraint("Horizontal", 63, 3, 66, 3),
    Sketcher.Constraint("Horizontal", 66, 3, 67, 3),
    Sketcher.Constraint("Vertical", 4, 3, 6, 3),
    Sketcher.Constraint("Vertical", 5, 3, 7, 3),
    Sketcher.Constraint("Vertical", 8, 3, 10, 3),
    Sketcher.Constraint("Vertical", 9, 3, 11, 3),
    Sketcher.Constraint("Vertical", 6, 3, 12, 3),
    Sketcher.Constraint("Vertical", 7, 3, 13, 3),
    Sketcher.Constraint("Vertical", 12, 3, 14, 3),
    Sketcher.Constraint("Vertical", 13, 3, 15, 3),
    Sketcher.Constraint("Vertical", 10, 3, 16, 3),
    Sketcher.Constraint("Vertical", 11, 3, 17, 3),
    Sketcher.Constraint("Vertical", 16, 3, 18, 3),
    Sketcher.Constraint("Vertical", 17, 3, 19, 3),
    Sketcher.Constraint("Vertical", 20, 3, 22, 3),
    Sketcher.Constraint("Vertical", 21, 3, 23, 3),
    Sketcher.Constraint("Vertical", 24, 3, 26, 3),
    Sketcher.Constraint("Vertical", 25, 3, 27, 3),
    Sketcher.Constraint("Vertical", 22, 3, 28, 3),
    Sketcher.Constraint("Vertical", 23, 3, 29, 3),
    Sketcher.Constraint("Vertical", 28, 3, 30, 3),
    Sketcher.Constraint("Vertical", 29, 3, 31, 3),
    Sketcher.Constraint("Vertical", 26, 3, 32, 3),
    Sketcher.Constraint("Vertical", 27, 3, 33, 3),
    Sketcher.Constraint("Vertical", 32, 3, 34, 3),
    Sketcher.Constraint("Vertical", 33, 3, 35, 3),
    Sketcher.Constraint("Vertical", 14, 3, 36, 3),
    Sketcher.Constraint("Vertical", 15, 3, 37, 3),
    Sketcher.Constraint("Vertical", 36, 3, 38, 3),
    Sketcher.Constraint("Vertical", 37, 3, 39, 3),
    Sketcher.Constraint("Vertical", 18, 3, 40, 3),
    Sketcher.Constraint("Vertical", 19, 3, 41, 3),
    Sketcher.Constraint("Vertical", 40, 3, 42, 3),
    Sketcher.Constraint("Vertical", 41, 3, 43, 3),
    Sketcher.Constraint("Vertical", 38, 3, 44, 3),
    Sketcher.Constraint("Vertical", 39, 3, 45, 3),
    Sketcher.Constraint("Vertical", 44, 3, 46, 3),
    Sketcher.Constraint("Vertical", 45, 3, 47, 3),
    Sketcher.Constraint("Vertical", 42, 3, 48, 3),
    Sketcher.Constraint("Vertical", 43, 3, 49, 3),
    Sketcher.Constraint("Vertical", 48, 3, 50, 3),
    Sketcher.Constraint("Vertical", 49, 3, 51, 3),
    Sketcher.Constraint("Vertical", 30, 3, 52, 3),
    Sketcher.Constraint("Vertical", 31, 3, 53, 3),
    Sketcher.Constraint("Vertical", 52, 3, 54, 3),
    Sketcher.Constraint("Vertical", 53, 3, 55, 3),
    Sketcher.Constraint("Vertical", 34, 3, 56, 3),
    Sketcher.Constraint("Vertical", 35, 3, 57, 3),
    Sketcher.Constraint("Vertical", 56, 3, 58, 3),
    Sketcher.Constraint("Vertical", 57, 3, 59, 3),
    Sketcher.Constraint("Vertical", 54, 3, 60, 3),
    Sketcher.Constraint("Vertical", 55, 3, 61, 3),
    Sketcher.Constraint("Vertical", 60, 3, 62, 3),
    Sketcher.Constraint("Vertical", 61, 3, 63, 3),
    Sketcher.Constraint("Vertical", 58, 3, 64, 3),
    Sketcher.Constraint("Vertical", 59, 3, 65, 3),
    Sketcher.Constraint("Vertical", 64, 3, 66, 3),
    Sketcher.Constraint("Vertical", 65, 3, 67, 3),
    Sketcher.Constraint("Equal", 3, 0),
    Sketcher.Constraint("Diameter", 4, 5.5),
    Sketcher.Constraint("DistanceX", 1, 1, 1, 2, 102.0),
    Sketcher.Constraint("DistanceX", 4, 3, -1, 1, 45.125),
    Sketcher.Constraint("DistanceY", -1, 1, 4, 3, 44.125),
    Sketcher.Constraint("DistanceX", 5, 3, -1, 1, 32.375),
    Sketcher.Constraint("DistanceY", -1, 1, 6, 3, 31.375),
    Sketcher.Constraint("DistanceX", 8, 3, -1, 1, 19.625),
    Sketcher.Constraint("DistanceX", 9, 3, -1, 1, 6.875),
    Sketcher.Constraint("DistanceY", -1, 1, 12, 3, 18.625),
    Sketcher.Constraint("DistanceY", -1, 1, 14, 3, 5.875),
    Sketcher.Constraint("DistanceX", -1, 1, 20, 3, 5.875),
    Sketcher.Constraint("DistanceX", -1, 1, 21, 3, 18.625),
    Sketcher.Constraint("DistanceX", -1, 1, 24, 3, 31.375),
    Sketcher.Constraint("DistanceX", -1, 1, 25, 3, 44.125),
    Sketcher.Constraint("DistanceY", 36, 3, -1, 1, 6.875),
    Sketcher.Constraint("DistanceY", 38, 3, -1, 1, 19.625),
    Sketcher.Constraint("DistanceY", 44, 3, -1, 1, 32.375),
    Sketcher.Constraint("DistanceY", 46, 3, -1, 1, 45.125),
])
sketch2.setExpression("Constraints[185]", "Params.sketch2_diameter")
sketch2.setExpression("Constraints[186]", "Params.sketch2_width")
pad2 = body.newObject("PartDesign::Pad", "Pad001")
pad2.Profile = sketch2
pad2.setExpression("Length", "Params.pad2_length")
pad2.Reversed = True

doc.recompute()
